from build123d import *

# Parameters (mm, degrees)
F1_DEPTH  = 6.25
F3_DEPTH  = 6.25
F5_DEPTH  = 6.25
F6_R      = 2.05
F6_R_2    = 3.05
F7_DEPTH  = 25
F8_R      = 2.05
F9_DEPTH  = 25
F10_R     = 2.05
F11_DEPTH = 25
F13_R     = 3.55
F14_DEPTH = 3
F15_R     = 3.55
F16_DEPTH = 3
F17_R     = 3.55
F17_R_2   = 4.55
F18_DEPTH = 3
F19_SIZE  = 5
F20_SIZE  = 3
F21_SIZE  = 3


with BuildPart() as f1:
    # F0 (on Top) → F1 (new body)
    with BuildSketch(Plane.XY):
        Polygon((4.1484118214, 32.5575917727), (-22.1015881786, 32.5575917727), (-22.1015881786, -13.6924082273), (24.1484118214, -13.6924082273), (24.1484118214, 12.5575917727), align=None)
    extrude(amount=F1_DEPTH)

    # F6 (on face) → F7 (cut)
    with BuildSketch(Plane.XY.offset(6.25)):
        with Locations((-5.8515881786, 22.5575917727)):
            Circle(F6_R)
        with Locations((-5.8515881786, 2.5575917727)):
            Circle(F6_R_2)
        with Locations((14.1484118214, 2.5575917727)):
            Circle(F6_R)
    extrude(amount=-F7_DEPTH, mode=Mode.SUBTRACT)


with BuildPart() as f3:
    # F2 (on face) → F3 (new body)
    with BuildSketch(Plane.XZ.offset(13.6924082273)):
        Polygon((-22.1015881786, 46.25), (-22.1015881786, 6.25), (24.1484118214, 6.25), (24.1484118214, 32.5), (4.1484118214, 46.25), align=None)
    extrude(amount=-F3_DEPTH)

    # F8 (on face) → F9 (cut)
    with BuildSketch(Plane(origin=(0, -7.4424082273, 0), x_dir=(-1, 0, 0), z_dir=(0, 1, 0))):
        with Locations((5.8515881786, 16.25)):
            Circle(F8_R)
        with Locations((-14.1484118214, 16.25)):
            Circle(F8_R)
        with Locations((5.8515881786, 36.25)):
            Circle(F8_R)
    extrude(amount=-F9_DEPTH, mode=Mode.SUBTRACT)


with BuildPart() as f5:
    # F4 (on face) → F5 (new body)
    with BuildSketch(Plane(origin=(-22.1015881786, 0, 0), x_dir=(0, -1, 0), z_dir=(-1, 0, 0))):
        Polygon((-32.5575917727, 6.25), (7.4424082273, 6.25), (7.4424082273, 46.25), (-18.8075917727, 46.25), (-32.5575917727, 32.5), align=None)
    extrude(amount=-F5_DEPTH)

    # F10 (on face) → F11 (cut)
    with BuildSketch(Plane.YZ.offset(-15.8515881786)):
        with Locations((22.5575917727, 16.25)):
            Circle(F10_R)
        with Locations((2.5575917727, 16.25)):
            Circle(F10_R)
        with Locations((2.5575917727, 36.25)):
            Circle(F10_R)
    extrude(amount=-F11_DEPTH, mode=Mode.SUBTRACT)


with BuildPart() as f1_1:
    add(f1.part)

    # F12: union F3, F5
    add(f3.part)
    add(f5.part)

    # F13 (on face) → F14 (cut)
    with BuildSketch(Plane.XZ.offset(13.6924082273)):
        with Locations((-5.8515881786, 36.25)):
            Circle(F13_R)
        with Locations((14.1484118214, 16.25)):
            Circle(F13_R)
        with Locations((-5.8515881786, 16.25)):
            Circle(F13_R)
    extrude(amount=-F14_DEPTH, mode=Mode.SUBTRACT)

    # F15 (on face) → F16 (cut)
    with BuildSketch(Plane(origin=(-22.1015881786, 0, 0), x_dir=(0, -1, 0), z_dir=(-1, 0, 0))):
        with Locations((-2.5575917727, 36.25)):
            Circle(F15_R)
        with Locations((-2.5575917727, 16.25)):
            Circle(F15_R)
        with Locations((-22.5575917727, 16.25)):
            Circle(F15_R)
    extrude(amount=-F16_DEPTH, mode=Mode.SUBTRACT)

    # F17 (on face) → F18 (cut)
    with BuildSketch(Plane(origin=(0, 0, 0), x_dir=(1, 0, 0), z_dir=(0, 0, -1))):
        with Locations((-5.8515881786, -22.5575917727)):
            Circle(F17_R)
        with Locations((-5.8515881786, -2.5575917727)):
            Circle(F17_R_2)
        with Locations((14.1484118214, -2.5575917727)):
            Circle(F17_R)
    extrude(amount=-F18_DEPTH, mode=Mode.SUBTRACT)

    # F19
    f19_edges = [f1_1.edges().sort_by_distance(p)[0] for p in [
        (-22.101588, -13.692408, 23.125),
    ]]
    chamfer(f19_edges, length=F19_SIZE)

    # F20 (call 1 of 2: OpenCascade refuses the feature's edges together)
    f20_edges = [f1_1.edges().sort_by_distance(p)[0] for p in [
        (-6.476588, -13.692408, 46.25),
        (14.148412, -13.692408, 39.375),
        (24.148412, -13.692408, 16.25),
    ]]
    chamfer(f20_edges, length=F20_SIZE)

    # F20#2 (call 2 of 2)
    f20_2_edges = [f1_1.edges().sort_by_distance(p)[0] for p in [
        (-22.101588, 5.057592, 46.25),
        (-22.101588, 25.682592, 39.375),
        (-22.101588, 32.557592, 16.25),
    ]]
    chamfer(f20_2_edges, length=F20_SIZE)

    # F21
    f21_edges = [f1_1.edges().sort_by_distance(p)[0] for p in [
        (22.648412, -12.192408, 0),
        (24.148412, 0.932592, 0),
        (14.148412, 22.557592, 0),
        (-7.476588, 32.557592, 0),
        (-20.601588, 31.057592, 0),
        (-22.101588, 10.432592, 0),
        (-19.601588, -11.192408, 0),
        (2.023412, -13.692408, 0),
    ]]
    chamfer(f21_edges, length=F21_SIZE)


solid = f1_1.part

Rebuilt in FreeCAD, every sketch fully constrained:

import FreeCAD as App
import Part
import Sketcher
from FreeCAD import Vector
Q = App.Units.Quantity


def edges_at(feature, points):
    """Names of the edges that pass closest to the given points."""
    edges = feature.Shape.Edges
    near = lambda p: min(range(len(edges)), key=lambda i: edges[i].distToShape(Part.Vertex(*p))[0])
    return sorted({f"Edge{near(p) + 1}" for p in points})


def add_polygon(sketch, points):
    """Adds a closed chain of lines whose ends are joined by coincident constraints."""
    first, n = sketch.GeometryCount, len(points)
    for a, b in zip(points, points[1:] + points[:1]):
        sketch.addGeometry(Part.LineSegment(App.Vector(*a, 0), App.Vector(*b, 0)), False)
    for i in range(n):
        sketch.addConstraint(Sketcher.Constraint("Coincident", first + i, 2, first + (i + 1) % n, 1))

doc = App.newDocument("Part")
body = doc.addObject("PartDesign::Body", "Body")

# Sketch on XY plane
sketch1 = doc.addObject("Sketcher::SketchObject", "Sketch")
body.addObject(sketch1)
sketch1.AttachmentSupport = (doc.XY_Plane, [""])
sketch1.MapMode = "FlatFace"
add_polygon(sketch1, [(4, 33), (-22, 33), (-22, -14), (24, -14), (24, 13)])  # lines 0-4
sketch1.addConstraint(Sketcher.Constraint("Horizontal", 0))
sketch1.addConstraint(Sketcher.Constraint("Vertical", 1))
sketch1.addConstraint(Sketcher.Constraint("Horizontal", 2))
sketch1.addConstraint(Sketcher.Constraint("Vertical", 3))
sketch1.addConstraint(Sketcher.Constraint("Equal", 2, 1))
sketch1.addConstraint(Sketcher.Constraint("Equal", 0, 3))
sketch1.addConstraint(Sketcher.Constraint("DistanceY", 3, 2, 0, 2, Q("20 mm")))
sketch1.addConstraint(Sketcher.Constraint("DistanceX", 0, 2, 0, 1, Q("26.25 mm")))
sketch1.addConstraint(Sketcher.Constraint("DistanceX", 0, 2, -1, 1, Q("22.101588 mm")))
sketch1.addConstraint(Sketcher.Constraint("DistanceY", -1, 1, 0, 2, Q("32.557592 mm")))
pad1 = doc.addObject("PartDesign::Pad", "Pad")
body.addObject(pad1)
pad1.Profile = sketch1
pad1.Length = 6.25

# Sketch on XY plane
sketch2 = doc.addObject("Sketcher::SketchObject", "Sketch001")
body.addObject(sketch2)
sketch2.AttachmentSupport = (doc.XY_Plane, [""])
sketch2.MapMode = "FlatFace"
sketch2.AttachmentOffset = App.Placement(Vector(0, 0, 6.25), App.Rotation())
sketch2.addGeometry(Part.Circle(Vector(-5.9, 22.6, 0), Vector(0, 0, 1), 2), False)
sketch2.addGeometry(Part.Circle(Vector(-5.9, 2.6, 0), Vector(0, 0, 1), 3), False)
sketch2.addGeometry(Part.Circle(Vector(14.1, 2.6, 0), Vector(0, 0, 1), 2), False)
sketch2.addConstraint(Sketcher.Constraint("Equal", 0, 2))
sketch2.addConstraint(Sketcher.Constraint("Horizontal", 1, 3, 2, 3))
sketch2.addConstraint(Sketcher.Constraint("Vertical", 0, 3, 1, 3))
sketch2.addConstraint(Sketcher.Constraint("Diameter", 0, Q("4.1 mm")))
sketch2.addConstraint(Sketcher.Constraint("Diameter", 1, Q("6.1 mm")))
sketch2.addConstraint(Sketcher.Constraint("DistanceY", 1, 3, 0, 3, Q("20 mm")))
sketch2.addConstraint(Sketcher.Constraint("DistanceX", 1, 3, 2, 3, Q("20 mm")))
sketch2.addConstraint(Sketcher.Constraint("DistanceX", 0, 3, -1, 1, Q("5.851588 mm")))
sketch2.addConstraint(Sketcher.Constraint("DistanceY", -1, 1, 0, 3, Q("22.557592 mm")))
pocket1 = doc.addObject("PartDesign::Pocket", "Pocket")
body.addObject(pocket1)
pocket1.Profile = sketch2
pocket1.Length = 25
body2 = doc.addObject("PartDesign::Body", "Body001")

# Sketch on XZ plane
sketch3 = doc.addObject("Sketcher::SketchObject", "Sketch002")
body2.addObject(sketch3)
sketch3.AttachmentSupport = (doc.getObject("XZ_Plane001"), [""])
sketch3.MapMode = "FlatFace"
sketch3.AttachmentOffset = App.Placement(Vector(0, 0, 13.692408), App.Rotation())
add_polygon(sketch3, [(-22, 46), (-22, 6), (24, 6), (24, 32), (4, 46)])  # lines 0-4
sketch3.addConstraint(Sketcher.Constraint("Vertical", 0))
sketch3.addConstraint(Sketcher.Constraint("Horizontal", 1))
sketch3.addConstraint(Sketcher.Constraint("Vertical", 2))
sketch3.addConstraint(Sketcher.Constraint("Horizontal", 4))
sketch3.addConstraint(Sketcher.Constraint("Equal", 4, 2))
sketch3.addConstraint(Sketcher.Constraint("DistanceY", 0, 2, 0, 1, Q("40 mm")))
sketch3.addConstraint(Sketcher.Constraint("DistanceX", 3, 2, 2, 2, Q("20 mm")))
sketch3.addConstraint(Sketcher.Constraint("DistanceX", 1, 1, 1, 2, Q("46.25 mm")))
sketch3.addConstraint(Sketcher.Constraint("DistanceY", -1, 1, 2, 2, Q("32.5 mm")))
sketch3.addConstraint(Sketcher.Constraint("DistanceX", 0, 2, -1, 1, Q("22.101588 mm")))
pad2 = doc.addObject("PartDesign::Pad", "Pad001")
body2.addObject(pad2)
pad2.Profile = sketch3
pad2.Length = 6.25
pad2.Reversed = True

# Sketch on XZ plane
sketch4 = doc.addObject("Sketcher::SketchObject", "Sketch003")
body2.addObject(sketch4)
sketch4.AttachmentSupport = (doc.getObject("XZ_Plane001"), [""])
sketch4.MapMode = "FlatFace"
sketch4.AttachmentOffset = App.Placement(Vector(0, 0, 7.442408), App.Rotation())
sketch4.addGeometry(Part.Circle(Vector(-5.9, 16.2, 0), Vector(0, 0, 1), 2), False)
sketch4.addGeometry(Part.Circle(Vector(14.1, 16.2, 0), Vector(0, 0, 1), 2), False)
sketch4.addGeometry(Part.Circle(Vector(-5.9, 36.2, 0), Vector(0, 0, 1), 2), False)
sketch4.addConstraint(Sketcher.Constraint("Equal", 0, 1))
sketch4.addConstraint(Sketcher.Constraint("Equal", 1, 2))
sketch4.addConstraint(Sketcher.Constraint("Horizontal", 0, 3, 1, 3))
sketch4.addConstraint(Sketcher.Constraint("Vertical", 0, 3, 2, 3))
sketch4.addConstraint(Sketcher.Constraint("Diameter", 0, Q("4.1 mm")))
sketch4.addConstraint(Sketcher.Constraint("DistanceX", 0, 3, 1, 3, Q("20 mm")))
sketch4.addConstraint(Sketcher.Constraint("DistanceY", 0, 3, 2, 3, Q("20 mm")))
sketch4.addConstraint(Sketcher.Constraint("DistanceY", -1, 1, 0, 3, Q("16.25 mm")))
sketch4.addConstraint(Sketcher.Constraint("DistanceX", 0, 3, -1, 1, Q("5.851588 mm")))
pocket2 = doc.addObject("PartDesign::Pocket", "Pocket001")
body2.addObject(pocket2)
pocket2.Profile = sketch4
pocket2.Length = 25
pocket2.Reversed = True
body3 = doc.addObject("PartDesign::Body", "Body002")

# Sketch on YZ plane
sketch5 = doc.addObject("Sketcher::SketchObject", "Sketch004")
body3.addObject(sketch5)
sketch5.AttachmentSupport = (doc.getObject("YZ_Plane002"), [""])
sketch5.MapMode = "FlatFace"
sketch5.AttachmentOffset = App.Placement(Vector(0, 0, -22.101588), App.Rotation())
add_polygon(sketch5, [(33, 6), (-7, 6), (-7, 46), (19, 46), (33, 32)])  # lines 0-4
sketch5.addConstraint(Sketcher.Constraint("Horizontal", 0))
sketch5.addConstraint(Sketcher.Constraint("Vertical", 1))
sketch5.addConstraint(Sketcher.Constraint("Horizontal", 2))
sketch5.addConstraint(Sketcher.Constraint("Vertical", 4))
sketch5.addConstraint(Sketcher.Constraint("Equal", 0, 1))
sketch5.addConstraint(Sketcher.Constraint("Equal", 2, 4))
sketch5.addConstraint(Sketcher.Constraint("DistanceX", 0, 2, 0, 1, Q("40 mm")))
sketch5.addConstraint(Sketcher.Constraint("DistanceX", 2, 1, 2, 2, Q("26.25 mm")))
sketch5.addConstraint(Sketcher.Constraint("DistanceY", -1, 1, 3, 2, Q("32.5 mm")))
sketch5.addConstraint(Sketcher.Constraint("DistanceX", 0, 2, -1, 1, Q("7.442408 mm")))
pad3 = doc.addObject("PartDesign::Pad", "Pad002")
body3.addObject(pad3)
pad3.Profile = sketch5
pad3.Length = 6.25

# Sketch on YZ plane
sketch6 = doc.addObject("Sketcher::SketchObject", "Sketch005")
body3.addObject(sketch6)
sketch6.AttachmentSupport = (doc.getObject("YZ_Plane002"), [""])
sketch6.MapMode = "FlatFace"
sketch6.AttachmentOffset = App.Placement(Vector(0, 0, -15.851588), App.Rotation())
sketch6.addGeometry(Part.Circle(Vector(22.6, 16.2, 0), Vector(0, 0, 1), 2), False)
sketch6.addGeometry(Part.Circle(Vector(2.6, 16.2, 0), Vector(0, 0, 1), 2), False)
sketch6.addGeometry(Part.Circle(Vector(2.6, 36.2, 0), Vector(0, 0, 1), 2), False)
sketch6.addConstraint(Sketcher.Constraint("Equal", 0, 1))
sketch6.addConstraint(Sketcher.Constraint("Equal", 1, 2))
sketch6.addConstraint(Sketcher.Constraint("Horizontal", 0, 3, 1, 3))
sketch6.addConstraint(Sketcher.Constraint("Vertical", 1, 3, 2, 3))
sketch6.addConstraint(Sketcher.Constraint("Diameter", 0, Q("4.1 mm")))
sketch6.addConstraint(Sketcher.Constraint("DistanceX", 1, 3, 0, 3, Q("20 mm")))
sketch6.addConstraint(Sketcher.Constraint("DistanceY", 1, 3, 2, 3, Q("20 mm")))
sketch6.addConstraint(Sketcher.Constraint("DistanceY", -1, 1, 0, 3, Q("16.25 mm")))
sketch6.addConstraint(Sketcher.Constraint("DistanceX", -1, 1, 0, 3, Q("22.557592 mm")))
pocket3 = doc.addObject("PartDesign::Pocket", "Pocket002")
body3.addObject(pocket3)
pocket3.Profile = sketch6
pocket3.Length = 25
doc.recompute()

boolean = doc.addObject("PartDesign::Boolean", "Boolean")
body.addObject(boolean)
boolean.Type = "Fuse"
boolean.addObjects([body2])
doc.recompute()

boolean2 = doc.addObject("PartDesign::Boolean", "Boolean001")
body.addObject(boolean2)
boolean2.Type = "Fuse"
boolean2.addObjects([body3])

# Sketch on XZ plane
sketch7 = doc.addObject("Sketcher::SketchObject", "Sketch006")
body.addObject(sketch7)
sketch7.AttachmentSupport = (doc.XZ_Plane, [""])
sketch7.MapMode = "FlatFace"
sketch7.AttachmentOffset = App.Placement(Vector(0, 0, 13.692408), App.Rotation())
sketch7.addGeometry(Part.Circle(Vector(-5.9, 36.2, 0), Vector(0, 0, 1), 3.5), False)
sketch7.addGeometry(Part.Circle(Vector(14.1, 16.2, 0), Vector(0, 0, 1), 3.5), False)
sketch7.addGeometry(Part.Circle(Vector(-5.9, 16.2, 0), Vector(0, 0, 1), 3.5), False)
sketch7.addConstraint(Sketcher.Constraint("Equal", 0, 1))
sketch7.addConstraint(Sketcher.Constraint("Equal", 1, 2))
sketch7.addConstraint(Sketcher.Constraint("Horizontal", 1, 3, 2, 3))
sketch7.addConstraint(Sketcher.Constraint("Vertical", 0, 3, 2, 3))
sketch7.addConstraint(Sketcher.Constraint("Diameter", 0, Q("7.1 mm")))
sketch7.addConstraint(Sketcher.Constraint("DistanceX", 0, 3, 1, 3, Q("20 mm")))
sketch7.addConstraint(Sketcher.Constraint("DistanceY", 1, 3, 0, 3, Q("20 mm")))
sketch7.addConstraint(Sketcher.Constraint("DistanceY", -1, 1, 0, 3, Q("36.25 mm")))
sketch7.addConstraint(Sketcher.Constraint("DistanceX", 0, 3, -1, 1, Q("5.851588 mm")))
pocket4 = doc.addObject("PartDesign::Pocket", "Pocket003")
body.addObject(pocket4)
pocket4.Profile = sketch7
pocket4.Length = 3

# Sketch on YZ plane
sketch8 = doc.addObject("Sketcher::SketchObject", "Sketch007")
body.addObject(sketch8)
sketch8.AttachmentSupport = (doc.YZ_Plane, [""])
sketch8.MapMode = "FlatFace"
sketch8.AttachmentOffset = App.Placement(Vector(0, 0, -22.101588), App.Rotation())
sketch8.addGeometry(Part.Circle(Vector(2.6, 36.2, 0), Vector(0, 0, 1), 3.5), False)
sketch8.addGeometry(Part.Circle(Vector(2.6, 16.2, 0), Vector(0, 0, 1), 3.5), False)
sketch8.addGeometry(Part.Circle(Vector(22.6, 16.2, 0), Vector(0, 0, 1), 3.5), False)
sketch8.addConstraint(Sketcher.Constraint("Equal", 0, 1))
sketch8.addConstraint(Sketcher.Constraint("Equal", 1, 2))
sketch8.addConstraint(Sketcher.Constraint("Horizontal", 1, 3, 2, 3))
sketch8.addConstraint(Sketcher.Constraint("Vertical", 0, 3, 1, 3))
sketch8.addConstraint(Sketcher.Constraint("Diameter", 0, Q("7.1 mm")))
sketch8.addConstraint(Sketcher.Constraint("DistanceY", 1, 3, 0, 3, Q("20 mm")))
sketch8.addConstraint(Sketcher.Constraint("DistanceX", 1, 3, 2, 3, Q("20 mm")))
sketch8.addConstraint(Sketcher.Constraint("DistanceY", -1, 1, 0, 3, Q("36.25 mm")))
sketch8.addConstraint(Sketcher.Constraint("DistanceX", -1, 1, 0, 3, Q("2.557592 mm")))
pocket5 = doc.addObject("PartDesign::Pocket", "Pocket004")
body.addObject(pocket5)
pocket5.Profile = sketch8
pocket5.Length = 3
pocket5.Reversed = True

# Sketch on XY plane
sketch9 = doc.addObject("Sketcher::SketchObject", "Sketch008")
body.addObject(sketch9)
sketch9.AttachmentSupport = (doc.XY_Plane, [""])
sketch9.MapMode = "FlatFace"
sketch9.addGeometry(Part.Circle(Vector(-5.9, 22.6, 0), Vector(0, 0, 1), 3.5), False)
sketch9.addGeometry(Part.Circle(Vector(-5.9, 2.6, 0), Vector(0, 0, 1), 4.5), False)
sketch9.addGeometry(Part.Circle(Vector(14.1, 2.6, 0), Vector(0, 0, 1), 3.5), False)
sketch9.addConstraint(Sketcher.Constraint("Equal", 0, 2))
sketch9.addConstraint(Sketcher.Constraint("Horizontal", 1, 3, 2, 3))
sketch9.addConstraint(Sketcher.Constraint("Vertical", 0, 3, 1, 3))
sketch9.addConstraint(Sketcher.Constraint("Diameter", 0, Q("7.1 mm")))
sketch9.addConstraint(Sketcher.Constraint("Diameter", 1, Q("9.1 mm")))
sketch9.addConstraint(Sketcher.Constraint("DistanceY", 1, 3, 0, 3, Q("20 mm")))
sketch9.addConstraint(Sketcher.Constraint("DistanceX", 1, 3, 2, 3, Q("20 mm")))
sketch9.addConstraint(Sketcher.Constraint("DistanceX", 0, 3, -1, 1, Q("5.851588 mm")))
sketch9.addConstraint(Sketcher.Constraint("DistanceY", -1, 1, 0, 3, Q("22.557592 mm")))
pocket6 = doc.addObject("PartDesign::Pocket", "Pocket005")
body.addObject(pocket6)
pocket6.Profile = sketch9
pocket6.Length = 3
pocket6.Reversed = True
doc.recompute()

chamfer = doc.addObject("PartDesign::Chamfer", "Chamfer")
body.addObject(chamfer)
chamfer.Base = (pocket6, edges_at(pocket6, [(-22.102, -13.692, 23.125)]))
chamfer.Size = 5
doc.recompute()

chamfer2 = doc.addObject("PartDesign::Chamfer", "Chamfer001")
body.addObject(chamfer2)
chamfer2.Base = (chamfer, edges_at(chamfer, [(-6.477, -13.692, 46.25), (14.148, -13.692, 39.375), (24.148, -13.692, 16.25)]))
chamfer2.Size = 3
doc.recompute()

chamfer3 = doc.addObject("PartDesign::Chamfer", "Chamfer002")
body.addObject(chamfer3)
chamfer3.Base = (chamfer2, edges_at(chamfer2, [(-22.102, 5.058, 46.25), (-22.102, 25.683, 39.375), (-22.102, 32.558, 16.25)]))
chamfer3.Size = 3
doc.recompute()

chamfer4 = doc.addObject("PartDesign::Chamfer", "Chamfer003")
body.addObject(chamfer4)
chamfer4.Base = (chamfer3, edges_at(chamfer3, [
    (22.648, -12.192, 0),
    (24.148, 0.933, 0),
    (14.148, 22.558, 0),
    (-7.477, 32.558, 0),
    (-20.602, 31.058, 0),
    (-22.102, 10.433, 0),
    (-19.602, -11.192, 0),
    (2.023, -13.692, 0),
]))
chamfer4.Size = 3

doc.recompute()
